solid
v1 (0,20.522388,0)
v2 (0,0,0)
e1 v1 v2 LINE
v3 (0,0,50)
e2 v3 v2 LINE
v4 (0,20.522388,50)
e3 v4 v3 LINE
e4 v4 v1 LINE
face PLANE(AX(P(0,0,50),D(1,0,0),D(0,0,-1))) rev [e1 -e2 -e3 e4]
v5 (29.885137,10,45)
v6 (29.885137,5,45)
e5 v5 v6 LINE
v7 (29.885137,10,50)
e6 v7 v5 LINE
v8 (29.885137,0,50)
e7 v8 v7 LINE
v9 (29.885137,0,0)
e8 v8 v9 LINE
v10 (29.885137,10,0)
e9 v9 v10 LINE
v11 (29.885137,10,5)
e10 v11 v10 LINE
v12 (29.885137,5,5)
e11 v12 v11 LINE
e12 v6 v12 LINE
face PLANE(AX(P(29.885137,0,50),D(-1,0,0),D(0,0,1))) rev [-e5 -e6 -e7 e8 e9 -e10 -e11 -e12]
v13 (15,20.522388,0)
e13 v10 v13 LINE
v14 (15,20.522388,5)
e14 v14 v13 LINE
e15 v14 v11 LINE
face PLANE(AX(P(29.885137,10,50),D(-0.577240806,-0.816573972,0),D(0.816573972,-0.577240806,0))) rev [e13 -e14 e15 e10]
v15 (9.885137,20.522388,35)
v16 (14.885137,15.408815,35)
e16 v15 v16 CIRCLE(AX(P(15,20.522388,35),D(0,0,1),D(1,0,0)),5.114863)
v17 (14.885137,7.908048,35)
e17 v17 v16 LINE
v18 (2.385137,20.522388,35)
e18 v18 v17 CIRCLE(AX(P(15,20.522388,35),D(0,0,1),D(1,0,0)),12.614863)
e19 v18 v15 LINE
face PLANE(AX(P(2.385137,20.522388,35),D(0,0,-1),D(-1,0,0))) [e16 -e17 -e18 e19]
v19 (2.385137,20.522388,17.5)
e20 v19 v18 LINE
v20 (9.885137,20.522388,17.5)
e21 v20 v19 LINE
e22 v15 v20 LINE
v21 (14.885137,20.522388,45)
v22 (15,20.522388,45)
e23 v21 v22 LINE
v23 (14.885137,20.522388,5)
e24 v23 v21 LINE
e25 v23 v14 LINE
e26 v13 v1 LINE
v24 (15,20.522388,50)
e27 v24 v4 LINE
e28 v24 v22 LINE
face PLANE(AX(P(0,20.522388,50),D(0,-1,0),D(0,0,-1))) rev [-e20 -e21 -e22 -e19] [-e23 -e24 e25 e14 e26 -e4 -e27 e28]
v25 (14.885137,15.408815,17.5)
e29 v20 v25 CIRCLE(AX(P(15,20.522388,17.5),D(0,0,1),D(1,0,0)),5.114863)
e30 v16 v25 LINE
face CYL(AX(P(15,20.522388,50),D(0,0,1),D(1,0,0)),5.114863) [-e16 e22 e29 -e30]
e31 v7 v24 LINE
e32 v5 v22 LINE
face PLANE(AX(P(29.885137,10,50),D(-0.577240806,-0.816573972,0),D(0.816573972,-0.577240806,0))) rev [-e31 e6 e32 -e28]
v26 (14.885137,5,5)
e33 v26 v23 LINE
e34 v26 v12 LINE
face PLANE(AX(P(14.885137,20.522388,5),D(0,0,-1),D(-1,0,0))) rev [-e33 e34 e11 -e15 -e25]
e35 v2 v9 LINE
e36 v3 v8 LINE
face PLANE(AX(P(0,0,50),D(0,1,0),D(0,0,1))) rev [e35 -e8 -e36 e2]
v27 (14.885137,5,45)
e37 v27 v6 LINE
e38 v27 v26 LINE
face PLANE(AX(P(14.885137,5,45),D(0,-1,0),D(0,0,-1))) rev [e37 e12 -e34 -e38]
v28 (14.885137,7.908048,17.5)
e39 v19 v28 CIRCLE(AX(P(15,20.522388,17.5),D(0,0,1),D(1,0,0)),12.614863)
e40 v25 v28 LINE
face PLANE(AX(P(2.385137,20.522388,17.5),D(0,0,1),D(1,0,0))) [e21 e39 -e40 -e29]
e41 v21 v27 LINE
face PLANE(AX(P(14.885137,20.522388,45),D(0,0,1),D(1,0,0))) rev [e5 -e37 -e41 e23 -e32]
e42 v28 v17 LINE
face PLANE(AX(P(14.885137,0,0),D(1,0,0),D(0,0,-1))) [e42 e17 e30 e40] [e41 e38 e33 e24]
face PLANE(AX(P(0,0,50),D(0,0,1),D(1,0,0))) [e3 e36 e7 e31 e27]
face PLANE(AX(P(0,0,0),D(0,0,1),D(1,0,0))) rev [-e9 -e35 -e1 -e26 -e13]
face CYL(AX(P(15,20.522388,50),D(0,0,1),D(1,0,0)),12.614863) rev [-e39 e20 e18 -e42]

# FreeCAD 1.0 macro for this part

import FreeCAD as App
import Part
import Sketcher
from FreeCAD import Vector

doc = App.newDocument("Part")
params = doc.addObject("Spreadsheet::Sheet", "Params")
for row, (alias, value) in enumerate([
    ("sketch1_width", "15 mm"),
    ("sketch1_height", "10 mm"),
    ("pad1_length", "50 mm"),
    ("sketch2_height", "40 mm"),
    ("pocket1_length", "15 mm"),
    ("sketch3_width", "7.5 mm"),
    ("sketch3_height", "17.5 mm"),
    ("groove_angle", "360 deg"),
], start=1):
    params.set(f"A{row}", alias)
    params.set(f"B{row}", "=" + value)
    params.setAlias(f"B{row}", alias)

body = doc.addObject("PartDesign::Body", "Body")

# Sketch on XY plane
sketch1 = doc.addObject("Sketcher::SketchObject", "Sketch")
body.addObject(sketch1)
sketch1.AttachmentSupport = (doc.XY_Plane, [""])
sketch1.MapMode = "FlatFace"
sketch1.addGeometry(Part.LineSegment(Vector(0, 21, 0), Vector(0, 0, 0)), False)
sketch1.addGeometry(Part.LineSegment(Vector(0, 0, 0), Vector(30, 0, 0)), False)
sketch1.addGeometry(Part.LineSegment(Vector(30, 0, 0), Vector(30, 10, 0)), False)
sketch1.addGeometry(Part.LineSegment(Vector(30, 10, 0), Vector(15, 21, 0)), False)
sketch1.addGeometry(Part.LineSegment(Vector(15, 21, 0), Vector(0, 21, 0)), False)
sketch1.addConstraint(Sketcher.Constraint("Coincident", 0, 2, 1, 1))
sketch1.addConstraint(Sketcher.Constraint("Coincident", 1, 2, 2, 1))
sketch1.addConstraint(Sketcher.Constraint("Coincident", 2, 2, 3, 1))
sketch1.addConstraint(Sketcher.Constraint("Coincident", 3, 2, 4, 1))
sketch1.addConstraint(Sketcher.Constraint("Coincident", 4, 2, 0, 1))
sketch1.addConstraint(Sketcher.Constraint("Vertical", 0))
sketch1.addConstraint(Sketcher.Constraint("Horizontal", 1))
sketch1.addConstraint(Sketcher.Constraint("Vertical", 2))
sketch1.addConstraint(Sketcher.Constraint("Horizontal", 4))
sketch1.addConstraint(Sketcher.Constraint("Coincident", 0, 2, -1, 1))
sketch1.addConstraint(Sketcher.Constraint("DistanceX", 4, 2, 4, 1, 15.0))
sketch1.addConstraint(Sketcher.Constraint("DistanceY", 2, 1, 2, 2, 10.0))
sketch1.addConstraint(Sketcher.Constraint("DistanceY", 0, 2, 0, 1, 20.522388))
sketch1.addConstraint(Sketcher.Constraint("DistanceX", 1, 1, 1, 2, 29.885137))
sketch1.setExpression("Constraints[10]", "Params.sketch1_width")
sketch1.setExpression("Constraints[11]", "Params.sketch1_height")
pad1 = doc.addObject("PartDesign::Pad", "Pad")
body.addObject(pad1)
pad1.Profile = sketch1
pad1.setExpression("Length", "Params.pad1_length")

# Sketch on YZ plane
sketch2 = doc.addObject("Sketcher::SketchObject", "Sketch001")
body.addObject(sketch2)
sketch2.AttachmentSupport = (doc.YZ_Plane, [""])
sketch2.MapMode = "FlatFace"
sketch2.AttachmentOffset = App.Placement(Vector(0, 0, 29.885137), App.Rotation())
sketch2.addGeometry(Part.LineSegment(Vector(21, 45, 0), Vector(5, 45, 0)), False)
sketch2.addGeometry(Part.LineSegment(Vector(5, 45, 0), Vector(5, 5, 0)), False)
sketch2.addGeometry(Part.LineSegment(Vector(5, 5, 0), Vector(21, 5, 0)), False)
sketch2.addGeometry(Part.LineSegment(Vector(21, 5, 0), Vector(21, 45, 0)), False)
sketch2.addConstraint(Sketcher.Constraint("Coincident", 0, 2, 1, 1))
sketch2.addConstraint(Sketcher.Constraint("Coincident", 1, 2, 2, 1))
sketch2.addConstraint(Sketcher.Constraint("Coincident", 2, 2, 3, 1))
sketch2.addConstraint(Sketcher.Constraint("Coincident", 3, 2, 0, 1))
sketch2.addConstraint(Sketcher.Constraint("Horizontal", 0))
sketch2.addConstraint(Sketcher.Constraint("Vertical", 1))
sketch2.addConstraint(Sketcher.Constraint("Horizontal", 2))
sketch2.addConstraint(Sketcher.Constraint("Vertical", 3))
sketch2.addConstraint(Sketcher.Constraint("DistanceY", 1, 2, 1, 1, 40.0))
sketch2.addConstraint(Sketcher.Constraint("DistanceX", -1, 1, 0, 2, 5.0))
sketch2.addConstraint(Sketcher.Constraint("DistanceY", -1, 1, 0, 2, 45.0))
sketch2.addConstraint(Sketcher.Constraint("DistanceX", 0, 2, 0, 1, 15.522388))
sketch2.setExpression("Constraints[8]", "Params.sketch2_height")
pocket1 = doc.addObject("PartDesign::Pocket", "Pocket")
body.addObject(pocket1)
pocket1.Profile = sketch2
pocket1.setExpression("Length", "Params.pocket1_length")

# Sketch on XZ plane
sketch3 = doc.addObject("Sketcher::SketchObject", "Sketch002")
body.addObject(sketch3)
sketch3.AttachmentSupport = (doc.XZ_Plane, [""])
sketch3.MapMode = "FlatFace"
sketch3.AttachmentOffset = App.Placement(Vector(0, 0, -20.522388), App.Rotation())
sketch3.addGeometry(Part.LineSegment(Vector(2, 18, 0), Vector(2, 35, 0)), False)
sketch3.addGeometry(Part.LineSegment(Vector(2, 35, 0), Vector(10, 35, 0)), False)
sketch3.addGeometry(Part.LineSegment(Vector(10, 35, 0), Vector(10, 18, 0)), False)
sketch3.addGeometry(Part.LineSegment(Vector(10, 18, 0), Vector(2, 18, 0)), False)
sketch3.addGeometry(Part.LineSegment(Vector(15, 35, 0), Vector(15, 18, 0)), True)  # axis
sketch3.addConstraint(Sketcher.Constraint("Coincident", 0, 2, 1, 1))
sketch3.addConstraint(Sketcher.Constraint("Coincident", 1, 2, 2, 1))
sketch3.addConstraint(Sketcher.Constraint("Coincident", 2, 2, 3, 1))
sketch3.addConstraint(Sketcher.Constraint("Coincident", 3, 2, 0, 1))
sketch3.addConstraint(Sketcher.Constraint("Vertical", 0))
sketch3.addConstraint(Sketcher.Constraint("Horizontal", 1))
sketch3.addConstraint(Sketcher.Constraint("Vertical", 2))
sketch3.addConstraint(Sketcher.Constraint("Horizontal", 3))
sketch3.addConstraint(Sketcher.Constraint("Vertical", 4))
sketch3.addConstraint(Sketcher.Constraint("Horizontal", 1, 2, 4, 1))
sketch3.addConstraint(Sketcher.Constraint("Horizontal", 3, 2, 4, 2))
sketch3.addConstraint(Sketcher.Constraint("DistanceX", 1, 1, 1, 2, 7.5))
sketch3.addConstraint(Sketcher.Constraint("DistanceY", 0, 1, 0, 2, 17.5))
sketch3.addConstraint(Sketcher.Constraint("DistanceY", -1, 1, 0, 2, 35.0))
sketch3.addConstraint(Sketcher.Constraint("DistanceX", -1, 1, 4, 1, 15.0))
sketch3.addConstraint(Sketcher.Constraint("DistanceX", -1, 1, 0, 2, 2.385137))
sketch3.setExpression("Constraints[11]", "Params.sketch3_width")
sketch3.setExpression("Constraints[12]", "Params.sketch3_height")
groove = doc.addObject("PartDesign::Groove", "Groove")
body.addObject(groove)
groove.Profile = sketch3
groove.ReferenceAxis = (sketch3, ["Axis0"])
groove.setExpression("Angle", "Params.groove_angle")

doc.recompute()
